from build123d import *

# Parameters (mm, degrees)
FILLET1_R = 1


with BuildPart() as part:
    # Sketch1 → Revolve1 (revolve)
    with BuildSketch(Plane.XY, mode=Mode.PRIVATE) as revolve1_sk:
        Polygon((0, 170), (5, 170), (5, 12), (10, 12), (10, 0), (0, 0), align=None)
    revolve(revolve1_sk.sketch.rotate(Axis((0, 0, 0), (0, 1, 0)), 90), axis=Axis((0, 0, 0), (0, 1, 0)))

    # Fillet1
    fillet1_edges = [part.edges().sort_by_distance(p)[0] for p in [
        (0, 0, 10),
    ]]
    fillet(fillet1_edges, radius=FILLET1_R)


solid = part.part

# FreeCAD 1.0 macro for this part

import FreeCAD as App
import Part
import Sketcher
from FreeCAD import Vector
Q = App.Units.Quantity


def edges_at(feature, points):
    """Names of the edges that pass closest to the given points."""
    edges = feature.Shape.Edges
    near = lambda p: min(range(len(edges)), key=lambda i: edges[i].distToShape(Part.Vertex(*p))[0])
    return sorted({f"Edge{near(p) + 1}" for p in points})


def add_polygon(sketch, points):
    """Adds a closed chain of lines whose ends are joined by coincident constraints."""
    first, n = sketch.GeometryCount, len(points)
    for a, b in zip(points, points[1:] + points[:1]):
        sketch.addGeometry(Part.LineSegment(App.Vector(*a, 0), App.Vector(*b, 0)), False)
    for i in range(n):
        sketch.addConstraint(Sketcher.Constraint("Coincident", first + i, 2, first + (i + 1) % n, 1))

doc = App.newDocument("Part")
body = doc.addObject("PartDesign::Body", "Body")

# Sketch on XY plane
sketch1 = body.newObject("Sketcher::SketchObject", "Sketch")
sketch1.AttachmentSupport = (doc.getObject("XY_Plane"), [""])
sketch1.MapMode = "FlatFace"
add_polygon(sketch1, [(5, 170), (0, 170), (0, 0), (10, 0), (10, 12), (5, 12)])  # lines 0-5
sketch1.addConstraint(Sketcher.Constraint("Horizontal", 0))
sketch1.addConstraint(Sketcher.Constraint("Vertical", 1))
sketch1.addConstraint(Sketcher.Constraint("Horizontal", 2))
sketch1.addConstraint(Sketcher.Constraint("Vertical", 3))
sketch1.addConstraint(Sketcher.Constraint("Horizontal", 4))
sketch1.addConstraint(Sketcher.Constraint("Vertical", 5))
sketch1.addConstraint(Sketcher.Constraint("Coincident", 1, 2, -1, 1))
sketch1.addConstraint(Sketcher.Constraint("Equal", 0, 4))
sketch1.addConstraint(Sketcher.Constraint("DistanceX", 0, 2, 0, 1, Q("5 mm")))
sketch1.addConstraint(Sketcher.Constraint("DistanceY", 1, 2, 1, 1, Q("170 mm")))
sketch1.addConstraint(Sketcher.Constraint("DistanceY", 3, 1, 3, 2, Q("12 mm")))
revolution = body.newObject("PartDesign::Revolution", "Revolution")
revolution.Profile = sketch1
revolution.ReferenceAxis = (sketch1, ["V_Axis"])
revolution.Angle = 360
doc.recompute()

fillet = body.newObject("PartDesign::Fillet", "Fillet")
fillet.Base = (revolution, edges_at(revolution, [(0, 0, 10)]))
fillet.Radius = 1

doc.recompute()
